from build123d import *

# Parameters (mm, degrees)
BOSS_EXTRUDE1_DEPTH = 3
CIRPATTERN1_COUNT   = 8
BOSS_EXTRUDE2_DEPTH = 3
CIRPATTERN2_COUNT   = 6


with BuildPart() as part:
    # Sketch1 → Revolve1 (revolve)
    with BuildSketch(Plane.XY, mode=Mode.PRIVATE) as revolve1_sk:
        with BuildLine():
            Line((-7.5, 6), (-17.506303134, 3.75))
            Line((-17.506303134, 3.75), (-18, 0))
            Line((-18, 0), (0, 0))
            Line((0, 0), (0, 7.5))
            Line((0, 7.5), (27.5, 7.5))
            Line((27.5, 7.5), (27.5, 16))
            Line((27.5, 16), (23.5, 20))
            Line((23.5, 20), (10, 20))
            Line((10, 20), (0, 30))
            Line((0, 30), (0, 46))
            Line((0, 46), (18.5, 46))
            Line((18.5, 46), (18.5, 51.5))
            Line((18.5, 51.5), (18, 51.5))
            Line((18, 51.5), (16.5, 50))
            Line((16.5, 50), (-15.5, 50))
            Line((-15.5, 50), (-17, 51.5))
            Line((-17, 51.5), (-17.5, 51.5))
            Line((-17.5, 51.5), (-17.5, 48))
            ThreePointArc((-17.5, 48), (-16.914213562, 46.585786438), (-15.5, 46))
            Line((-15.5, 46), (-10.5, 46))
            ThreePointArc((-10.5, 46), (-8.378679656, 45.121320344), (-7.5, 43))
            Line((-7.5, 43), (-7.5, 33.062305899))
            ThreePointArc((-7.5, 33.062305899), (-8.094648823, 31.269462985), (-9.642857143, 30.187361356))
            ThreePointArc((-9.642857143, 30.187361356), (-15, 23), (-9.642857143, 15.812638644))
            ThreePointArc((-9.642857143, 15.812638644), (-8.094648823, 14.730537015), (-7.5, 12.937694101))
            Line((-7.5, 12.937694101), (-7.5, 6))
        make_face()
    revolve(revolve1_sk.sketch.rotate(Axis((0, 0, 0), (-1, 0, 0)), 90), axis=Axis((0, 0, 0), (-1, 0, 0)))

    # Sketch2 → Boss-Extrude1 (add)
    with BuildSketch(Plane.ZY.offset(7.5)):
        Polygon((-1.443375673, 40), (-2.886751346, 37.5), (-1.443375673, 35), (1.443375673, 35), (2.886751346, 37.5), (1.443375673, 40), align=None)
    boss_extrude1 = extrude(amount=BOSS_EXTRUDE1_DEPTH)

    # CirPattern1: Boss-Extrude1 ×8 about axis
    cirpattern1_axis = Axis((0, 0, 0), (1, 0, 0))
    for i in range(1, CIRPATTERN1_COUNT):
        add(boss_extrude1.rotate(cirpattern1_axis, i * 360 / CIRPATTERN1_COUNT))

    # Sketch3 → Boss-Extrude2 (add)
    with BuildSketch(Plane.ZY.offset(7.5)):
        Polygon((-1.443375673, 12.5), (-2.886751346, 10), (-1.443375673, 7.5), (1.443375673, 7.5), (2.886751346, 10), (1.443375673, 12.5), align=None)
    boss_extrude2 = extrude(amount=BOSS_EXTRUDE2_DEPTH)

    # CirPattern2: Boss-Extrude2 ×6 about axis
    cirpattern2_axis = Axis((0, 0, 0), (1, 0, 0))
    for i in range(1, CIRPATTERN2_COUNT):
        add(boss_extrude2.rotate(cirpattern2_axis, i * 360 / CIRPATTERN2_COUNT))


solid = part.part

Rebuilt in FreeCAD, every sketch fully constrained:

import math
import FreeCAD as App
import Part
import Sketcher

V = App.Vector
Q = App.Units.Quantity

doc = App.newDocument("Part")
body = doc.addObject("PartDesign::Body", "Body")

# Sketch on XY plane
sketch1 = doc.addObject("Sketcher::SketchObject", "Sketch")
body.addObject(sketch1)
sketch1.AttachmentSupport = (doc.XY_Plane, [""])
sketch1.MapMode = "FlatFace"
sketch1.addGeometry([
    Part.LineSegment(V(-7.5, 6, 0), V(-17.506303, 3.75, 0)),  # 0
    Part.LineSegment(V(-17.506303, 3.75, 0), V(-18, 0, 0)),  # 1
    Part.LineSegment(V(-18, 0, 0), V(0, 0, 0)),  # 2
    Part.LineSegment(V(0, 0, 0), V(0, 7.5, 0)),  # 3
    Part.LineSegment(V(0, 7.5, 0), V(27.5, 7.5, 0)),  # 4
    Part.LineSegment(V(27.5, 7.5, 0), V(27.5, 16, 0)),  # 5
    Part.LineSegment(V(27.5, 16, 0), V(23.5, 20, 0)),  # 6
    Part.LineSegment(V(23.5, 20, 0), V(10, 20, 0)),  # 7
    Part.LineSegment(V(10, 20, 0), V(0, 30, 0)),  # 8
    Part.LineSegment(V(0, 30, 0), V(0, 46, 0)),  # 9
    Part.LineSegment(V(0, 46, 0), V(18.5, 46, 0)),  # 10
    Part.LineSegment(V(18.5, 46, 0), V(18.5, 51.5, 0)),  # 11
    Part.LineSegment(V(18.5, 51.5, 0), V(18, 51.5, 0)),  # 12
    Part.LineSegment(V(18, 51.5, 0), V(16.5, 50, 0)),  # 13
    Part.LineSegment(V(16.5, 50, 0), V(-15.5, 50, 0)),  # 14
    Part.LineSegment(V(-15.5, 50, 0), V(-17, 51.5, 0)),  # 15
    Part.LineSegment(V(-17, 51.5, 0), V(-17.5, 51.5, 0)),  # 16
    Part.LineSegment(V(-17.5, 51.5, 0), V(-17.5, 48, 0)),  # 17
    Part.ArcOfCircle(Part.Circle(V(-15.5, 48, 0), V(0, 0, 1), 2), math.radians(-180), math.radians(-90)),  # 18
    Part.LineSegment(V(-15.5, 46, 0), V(-10.5, 46, 0)),  # 19
    Part.ArcOfCircle(Part.Circle(V(-10.5, 43, 0), V(0, 0, 1), 3), math.radians(0), math.radians(90)),  # 20
    Part.LineSegment(V(-7.5, 43, 0), V(-7.5, 33.062306, 0)),  # 21
    Part.ArcOfCircle(Part.Circle(V(-10.5, 33.062306, 0), V(0, 0, 1), 3), math.radians(-73.39845), math.radians(0)),  # 22
    Part.ArcOfCircle(Part.Circle(V(-7.5, 23, 0), V(0, 0, 1), 7.5), math.radians(106.60155), math.radians(253.39845)),  # 23
    Part.ArcOfCircle(Part.Circle(V(-10.5, 12.937694, 0), V(0, 0, 1), 3), math.radians(0), math.radians(73.39845)),  # 24
    Part.LineSegment(V(-7.5, 12.937694, 0), V(-7.5, 6, 0)),  # 25
], False)
sketch1.addConstraint([
    Sketcher.Constraint("Coincident", 0, 2, 1, 1),
    Sketcher.Constraint("Coincident", 1, 2, 2, 1),
    Sketcher.Constraint("Coincident", 2, 2, 3, 1),
    Sketcher.Constraint("Coincident", 3, 2, 4, 1),
    Sketcher.Constraint("Coincident", 4, 2, 5, 1),
    Sketcher.Constraint("Coincident", 5, 2, 6, 1),
    Sketcher.Constraint("Coincident", 6, 2, 7, 1),
    Sketcher.Constraint("Coincident", 7, 2, 8, 1),
    Sketcher.Constraint("Coincident", 8, 2, 9, 1),
    Sketcher.Constraint("Coincident", 9, 2, 10, 1),
    Sketcher.Constraint("Coincident", 10, 2, 11, 1),
    Sketcher.Constraint("Coincident", 11, 2, 12, 1),
    Sketcher.Constraint("Coincident", 12, 2, 13, 1),
    Sketcher.Constraint("Coincident", 13, 2, 14, 1),
    Sketcher.Constraint("Coincident", 14, 2, 15, 1),
    Sketcher.Constraint("Coincident", 15, 2, 16, 1),
    Sketcher.Constraint("Coincident", 16, 2, 17, 1),
    Sketcher.Constraint("Tangent", 17, 2, 18, 1),
    Sketcher.Constraint("Tangent", 18, 2, 19, 1),
    Sketcher.Constraint("Tangent", 19, 2, 20, 2),
    Sketcher.Constraint("Tangent", 20, 1, 21, 1),
    Sketcher.Constraint("Tangent", 21, 2, 22, 2),
    Sketcher.Constraint("Tangent", 22, 1, 23, 1),
    Sketcher.Constraint("Tangent", 23, 2, 24, 2),
    Sketcher.Constraint("Tangent", 24, 1, 25, 1),
    Sketcher.Constraint("Coincident", 25, 2, 0, 1),
    Sketcher.Constraint("Horizontal", 2),
    Sketcher.Constraint("Vertical", 3),
    Sketcher.Constraint("Horizontal", 4),
    Sketcher.Constraint("Vertical", 5),
    Sketcher.Constraint("Horizontal", 7),
    Sketcher.Constraint("Vertical", 9),
    Sketcher.Constraint("Horizontal", 10),
    Sketcher.Constraint("Vertical", 11),
    Sketcher.Constraint("Horizontal", 12),
    Sketcher.Constraint("Horizontal", 14),
    Sketcher.Constraint("Horizontal", 16),
    Sketcher.Constraint("Vertical", 17),
    Sketcher.Constraint("Horizontal", 19),
    Sketcher.Constraint("Vertical", 21),
    Sketcher.Constraint("Vertical", 25),
    Sketcher.Constraint("Coincident", 2, 2, -1, 1),
    Sketcher.Constraint("Equal", 20, 22),
    Sketcher.Constraint("Equal", 22, 24),
    Sketcher.Constraint("PointOnObject", 8, 2, -2),
    Sketcher.Constraint("Parallel", 6, 8),
    Sketcher.Constraint("Perpendicular", 8, 13),
    Sketcher.Constraint("Perpendicular", 13, 15),
    Sketcher.Constraint("Horizontal", 12, 2, 15, 2),
    Sketcher.Constraint("Horizontal", 10, 2, 18, 2),
    Sketcher.Constraint("Vertical", 22, 3, 24, 3),
    Sketcher.Constraint("Vertical", 18, 3, 14, 2),
    Sketcher.Constraint("Vertical", 23, 3, 20, 1),
    Sketcher.Constraint("Equal", 12, 16),
    Sketcher.Constraint("Equal", 13, 15),
    Sketcher.Constraint("Radius", 18, Q("2 mm")),
    Sketcher.Constraint("Radius", 20, Q("3 mm")),
    Sketcher.Constraint("Radius", 23, Q("7.5 mm")),
    Sketcher.Constraint("DistanceX", 2, 1, 2, 2, Q("18 mm")),
    Sketcher.Constraint("DistanceX", 14, 2, 14, 1, Q("32 mm")),
    Sketcher.Constraint("DistanceX", 19, 1, 19, 2, Q("5 mm")),
    Sketcher.Constraint("DistanceY", 9, 1, 9, 2, Q("16 mm")),
    Sketcher.Constraint("DistanceX", 4, 1, 4, 2, Q("27.5 mm")),
    Sketcher.Constraint("DistanceX", 7, 2, 7, 1, Q("13.5 mm")),
    Sketcher.Constraint("DistanceX", 10, 1, 10, 2, Q("18.5 mm")),
    Sketcher.Constraint("DistanceX", 12, 2, 12, 1, Q("0.5 mm")),
    Sketcher.Constraint("DistanceY", 3, 1, 3, 2, Q("7.5 mm")),
    Sketcher.Constraint("DistanceY", 5, 1, 5, 2, Q("8.5 mm")),
    Sketcher.Constraint("DistanceY", 11, 1, 11, 2, Q("5.5 mm")),
    Sketcher.Constraint("DistanceY", -1, 1, 23, 3, Q("23 mm")),
    Sketcher.Constraint("DistanceY", -1, 1, 6, 2, Q("20 mm")),
    Sketcher.Constraint("DistanceY", -1, 1, 25, 2, Q("6 mm")),
    Sketcher.Constraint("Angle", 1, Q("-97.5 deg")),
    Sketcher.Constraint("DistanceY", -1, 1, 0, 2, Q("3.75 mm")),
])
revolution = doc.addObject("PartDesign::Revolution", "Revolution")
body.addObject(revolution)
revolution.Profile = sketch1
revolution.ReferenceAxis = (sketch1, ["H_Axis"])
revolution.Angle = 360

# Sketch on YZ plane
sketch2 = doc.addObject("Sketcher::SketchObject", "Sketch001")
body.addObject(sketch2)
sketch2.AttachmentSupport = (doc.YZ_Plane, [""])
sketch2.MapMode = "FlatFace"
sketch2.AttachmentOffset = App.Placement(V(0, 0, -7.5), App.Rotation())
sketch2.addGeometry([
    Part.LineSegment(V(40, -1.443376, 0), V(37.5, -2.886751, 0)),  # 0
    Part.LineSegment(V(37.5, -2.886751, 0), V(35, -1.443376, 0)),  # 1
    Part.LineSegment(V(35, -1.443376, 0), V(35, 1.443376, 0)),  # 2
    Part.LineSegment(V(35, 1.443376, 0), V(37.5, 2.886751, 0)),  # 3
    Part.LineSegment(V(37.5, 2.886751, 0), V(40, 1.443376, 0)),  # 4
    Part.LineSegment(V(40, 1.443376, 0), V(40, -1.443376, 0)),  # 5
], False)
sketch2.addConstraint([
    Sketcher.Constraint("Coincident", 0, 2, 1, 1),
    Sketcher.Constraint("Coincident", 1, 2, 2, 1),
    Sketcher.Constraint("Coincident", 2, 2, 3, 1),
    Sketcher.Constraint("Coincident", 3, 2, 4, 1),
    Sketcher.Constraint("Coincident", 4, 2, 5, 1),
    Sketcher.Constraint("Coincident", 5, 2, 0, 1),
    Sketcher.Constraint("Vertical", 2),
    Sketcher.Constraint("Vertical", 5),
    Sketcher.Constraint("Symmetric", 0, 2, 3, 2, -1),
    Sketcher.Constraint("Parallel", 0, 3),
    Sketcher.Constraint("Parallel", 1, 4),
    Sketcher.Constraint("Horizontal", 2, 2, 4, 2),
    Sketcher.Constraint("Horizontal", 1, 2, 5, 2),
    Sketcher.Constraint("Angle", 0, Q("-150 deg")),
    Sketcher.Constraint("DistanceX", -1, 1, 1, 2, Q("35 mm")),
    Sketcher.Constraint("DistanceX", -1, 1, 4, 2, Q("40 mm")),
    Sketcher.Constraint("DistanceY", 2, 1, 2, 2, Q("2.886751 mm")),
])
pad1 = doc.addObject("PartDesign::Pad", "Pad")
body.addObject(pad1)
pad1.Profile = sketch2
pad1.Length = 3
pad1.Reversed = True
doc.recompute()

polarpattern = doc.addObject("PartDesign::PolarPattern", "PolarPattern")
body.addObject(polarpattern)
polarpattern.Originals = [pad1]
polarpattern.Axis = (doc.X_Axis, [""])
polarpattern.Angle = 360
polarpattern.Occurrences = 8
body.Tip = polarpattern

# Sketch on YZ plane
sketch3 = doc.addObject("Sketcher::SketchObject", "Sketch002")
body.addObject(sketch3)
sketch3.AttachmentSupport = (doc.YZ_Plane, [""])
sketch3.MapMode = "FlatFace"
sketch3.AttachmentOffset = App.Placement(V(0, 0, -7.5), App.Rotation())
sketch3.addGeometry([
    Part.LineSegment(V(12.5, -1.443376, 0), V(10, -2.886751, 0)),  # 0
    Part.LineSegment(V(10, -2.886751, 0), V(7.5, -1.443376, 0)),  # 1
    Part.LineSegment(V(7.5, -1.443376, 0), V(7.5, 1.443376, 0)),  # 2
    Part.LineSegment(V(7.5, 1.443376, 0), V(10, 2.886751, 0)),  # 3
    Part.LineSegment(V(10, 2.886751, 0), V(12.5, 1.443376, 0)),  # 4
    Part.LineSegment(V(12.5, 1.443376, 0), V(12.5, -1.443376, 0)),  # 5
], False)
sketch3.addConstraint([
    Sketcher.Constraint("Coincident", 0, 2, 1, 1),
    Sketcher.Constraint("Coincident", 1, 2, 2, 1),
    Sketcher.Constraint("Coincident", 2, 2, 3, 1),
    Sketcher.Constraint("Coincident", 3, 2, 4, 1),
    Sketcher.Constraint("Coincident", 4, 2, 5, 1),
    Sketcher.Constraint("Coincident", 5, 2, 0, 1),
    Sketcher.Constraint("Vertical", 2),
    Sketcher.Constraint("Vertical", 5),
    Sketcher.Constraint("Symmetric", 0, 2, 3, 2, -1),
    Sketcher.Constraint("Parallel", 0, 3),
    Sketcher.Constraint("Parallel", 1, 4),
    Sketcher.Constraint("Horizontal", 2, 2, 4, 2),
    Sketcher.Constraint("Horizontal", 1, 2, 5, 2),
    Sketcher.Constraint("Angle", 0, Q("-150 deg")),
    Sketcher.Constraint("DistanceX", -1, 1, 0, 2, Q("10 mm")),
    Sketcher.Constraint("DistanceX", 2, 2, 4, 2, Q("5 mm")),
    Sketcher.Constraint("DistanceY", 2, 1, 2, 2, Q("2.886751 mm")),
])
pad2 = doc.addObject("PartDesign::Pad", "Pad001")
body.addObject(pad2)
pad2.Profile = sketch3
pad2.Length = 3
pad2.Reversed = True
doc.recompute()

polarpattern2 = doc.addObject("PartDesign::PolarPattern", "PolarPattern001")
body.addObject(polarpattern2)
polarpattern2.Originals = [pad2]
polarpattern2.Axis = (doc.X_Axis, [""])
polarpattern2.Angle = 360
polarpattern2.Occurrences = 6
body.Tip = polarpattern2

doc.recompute()
